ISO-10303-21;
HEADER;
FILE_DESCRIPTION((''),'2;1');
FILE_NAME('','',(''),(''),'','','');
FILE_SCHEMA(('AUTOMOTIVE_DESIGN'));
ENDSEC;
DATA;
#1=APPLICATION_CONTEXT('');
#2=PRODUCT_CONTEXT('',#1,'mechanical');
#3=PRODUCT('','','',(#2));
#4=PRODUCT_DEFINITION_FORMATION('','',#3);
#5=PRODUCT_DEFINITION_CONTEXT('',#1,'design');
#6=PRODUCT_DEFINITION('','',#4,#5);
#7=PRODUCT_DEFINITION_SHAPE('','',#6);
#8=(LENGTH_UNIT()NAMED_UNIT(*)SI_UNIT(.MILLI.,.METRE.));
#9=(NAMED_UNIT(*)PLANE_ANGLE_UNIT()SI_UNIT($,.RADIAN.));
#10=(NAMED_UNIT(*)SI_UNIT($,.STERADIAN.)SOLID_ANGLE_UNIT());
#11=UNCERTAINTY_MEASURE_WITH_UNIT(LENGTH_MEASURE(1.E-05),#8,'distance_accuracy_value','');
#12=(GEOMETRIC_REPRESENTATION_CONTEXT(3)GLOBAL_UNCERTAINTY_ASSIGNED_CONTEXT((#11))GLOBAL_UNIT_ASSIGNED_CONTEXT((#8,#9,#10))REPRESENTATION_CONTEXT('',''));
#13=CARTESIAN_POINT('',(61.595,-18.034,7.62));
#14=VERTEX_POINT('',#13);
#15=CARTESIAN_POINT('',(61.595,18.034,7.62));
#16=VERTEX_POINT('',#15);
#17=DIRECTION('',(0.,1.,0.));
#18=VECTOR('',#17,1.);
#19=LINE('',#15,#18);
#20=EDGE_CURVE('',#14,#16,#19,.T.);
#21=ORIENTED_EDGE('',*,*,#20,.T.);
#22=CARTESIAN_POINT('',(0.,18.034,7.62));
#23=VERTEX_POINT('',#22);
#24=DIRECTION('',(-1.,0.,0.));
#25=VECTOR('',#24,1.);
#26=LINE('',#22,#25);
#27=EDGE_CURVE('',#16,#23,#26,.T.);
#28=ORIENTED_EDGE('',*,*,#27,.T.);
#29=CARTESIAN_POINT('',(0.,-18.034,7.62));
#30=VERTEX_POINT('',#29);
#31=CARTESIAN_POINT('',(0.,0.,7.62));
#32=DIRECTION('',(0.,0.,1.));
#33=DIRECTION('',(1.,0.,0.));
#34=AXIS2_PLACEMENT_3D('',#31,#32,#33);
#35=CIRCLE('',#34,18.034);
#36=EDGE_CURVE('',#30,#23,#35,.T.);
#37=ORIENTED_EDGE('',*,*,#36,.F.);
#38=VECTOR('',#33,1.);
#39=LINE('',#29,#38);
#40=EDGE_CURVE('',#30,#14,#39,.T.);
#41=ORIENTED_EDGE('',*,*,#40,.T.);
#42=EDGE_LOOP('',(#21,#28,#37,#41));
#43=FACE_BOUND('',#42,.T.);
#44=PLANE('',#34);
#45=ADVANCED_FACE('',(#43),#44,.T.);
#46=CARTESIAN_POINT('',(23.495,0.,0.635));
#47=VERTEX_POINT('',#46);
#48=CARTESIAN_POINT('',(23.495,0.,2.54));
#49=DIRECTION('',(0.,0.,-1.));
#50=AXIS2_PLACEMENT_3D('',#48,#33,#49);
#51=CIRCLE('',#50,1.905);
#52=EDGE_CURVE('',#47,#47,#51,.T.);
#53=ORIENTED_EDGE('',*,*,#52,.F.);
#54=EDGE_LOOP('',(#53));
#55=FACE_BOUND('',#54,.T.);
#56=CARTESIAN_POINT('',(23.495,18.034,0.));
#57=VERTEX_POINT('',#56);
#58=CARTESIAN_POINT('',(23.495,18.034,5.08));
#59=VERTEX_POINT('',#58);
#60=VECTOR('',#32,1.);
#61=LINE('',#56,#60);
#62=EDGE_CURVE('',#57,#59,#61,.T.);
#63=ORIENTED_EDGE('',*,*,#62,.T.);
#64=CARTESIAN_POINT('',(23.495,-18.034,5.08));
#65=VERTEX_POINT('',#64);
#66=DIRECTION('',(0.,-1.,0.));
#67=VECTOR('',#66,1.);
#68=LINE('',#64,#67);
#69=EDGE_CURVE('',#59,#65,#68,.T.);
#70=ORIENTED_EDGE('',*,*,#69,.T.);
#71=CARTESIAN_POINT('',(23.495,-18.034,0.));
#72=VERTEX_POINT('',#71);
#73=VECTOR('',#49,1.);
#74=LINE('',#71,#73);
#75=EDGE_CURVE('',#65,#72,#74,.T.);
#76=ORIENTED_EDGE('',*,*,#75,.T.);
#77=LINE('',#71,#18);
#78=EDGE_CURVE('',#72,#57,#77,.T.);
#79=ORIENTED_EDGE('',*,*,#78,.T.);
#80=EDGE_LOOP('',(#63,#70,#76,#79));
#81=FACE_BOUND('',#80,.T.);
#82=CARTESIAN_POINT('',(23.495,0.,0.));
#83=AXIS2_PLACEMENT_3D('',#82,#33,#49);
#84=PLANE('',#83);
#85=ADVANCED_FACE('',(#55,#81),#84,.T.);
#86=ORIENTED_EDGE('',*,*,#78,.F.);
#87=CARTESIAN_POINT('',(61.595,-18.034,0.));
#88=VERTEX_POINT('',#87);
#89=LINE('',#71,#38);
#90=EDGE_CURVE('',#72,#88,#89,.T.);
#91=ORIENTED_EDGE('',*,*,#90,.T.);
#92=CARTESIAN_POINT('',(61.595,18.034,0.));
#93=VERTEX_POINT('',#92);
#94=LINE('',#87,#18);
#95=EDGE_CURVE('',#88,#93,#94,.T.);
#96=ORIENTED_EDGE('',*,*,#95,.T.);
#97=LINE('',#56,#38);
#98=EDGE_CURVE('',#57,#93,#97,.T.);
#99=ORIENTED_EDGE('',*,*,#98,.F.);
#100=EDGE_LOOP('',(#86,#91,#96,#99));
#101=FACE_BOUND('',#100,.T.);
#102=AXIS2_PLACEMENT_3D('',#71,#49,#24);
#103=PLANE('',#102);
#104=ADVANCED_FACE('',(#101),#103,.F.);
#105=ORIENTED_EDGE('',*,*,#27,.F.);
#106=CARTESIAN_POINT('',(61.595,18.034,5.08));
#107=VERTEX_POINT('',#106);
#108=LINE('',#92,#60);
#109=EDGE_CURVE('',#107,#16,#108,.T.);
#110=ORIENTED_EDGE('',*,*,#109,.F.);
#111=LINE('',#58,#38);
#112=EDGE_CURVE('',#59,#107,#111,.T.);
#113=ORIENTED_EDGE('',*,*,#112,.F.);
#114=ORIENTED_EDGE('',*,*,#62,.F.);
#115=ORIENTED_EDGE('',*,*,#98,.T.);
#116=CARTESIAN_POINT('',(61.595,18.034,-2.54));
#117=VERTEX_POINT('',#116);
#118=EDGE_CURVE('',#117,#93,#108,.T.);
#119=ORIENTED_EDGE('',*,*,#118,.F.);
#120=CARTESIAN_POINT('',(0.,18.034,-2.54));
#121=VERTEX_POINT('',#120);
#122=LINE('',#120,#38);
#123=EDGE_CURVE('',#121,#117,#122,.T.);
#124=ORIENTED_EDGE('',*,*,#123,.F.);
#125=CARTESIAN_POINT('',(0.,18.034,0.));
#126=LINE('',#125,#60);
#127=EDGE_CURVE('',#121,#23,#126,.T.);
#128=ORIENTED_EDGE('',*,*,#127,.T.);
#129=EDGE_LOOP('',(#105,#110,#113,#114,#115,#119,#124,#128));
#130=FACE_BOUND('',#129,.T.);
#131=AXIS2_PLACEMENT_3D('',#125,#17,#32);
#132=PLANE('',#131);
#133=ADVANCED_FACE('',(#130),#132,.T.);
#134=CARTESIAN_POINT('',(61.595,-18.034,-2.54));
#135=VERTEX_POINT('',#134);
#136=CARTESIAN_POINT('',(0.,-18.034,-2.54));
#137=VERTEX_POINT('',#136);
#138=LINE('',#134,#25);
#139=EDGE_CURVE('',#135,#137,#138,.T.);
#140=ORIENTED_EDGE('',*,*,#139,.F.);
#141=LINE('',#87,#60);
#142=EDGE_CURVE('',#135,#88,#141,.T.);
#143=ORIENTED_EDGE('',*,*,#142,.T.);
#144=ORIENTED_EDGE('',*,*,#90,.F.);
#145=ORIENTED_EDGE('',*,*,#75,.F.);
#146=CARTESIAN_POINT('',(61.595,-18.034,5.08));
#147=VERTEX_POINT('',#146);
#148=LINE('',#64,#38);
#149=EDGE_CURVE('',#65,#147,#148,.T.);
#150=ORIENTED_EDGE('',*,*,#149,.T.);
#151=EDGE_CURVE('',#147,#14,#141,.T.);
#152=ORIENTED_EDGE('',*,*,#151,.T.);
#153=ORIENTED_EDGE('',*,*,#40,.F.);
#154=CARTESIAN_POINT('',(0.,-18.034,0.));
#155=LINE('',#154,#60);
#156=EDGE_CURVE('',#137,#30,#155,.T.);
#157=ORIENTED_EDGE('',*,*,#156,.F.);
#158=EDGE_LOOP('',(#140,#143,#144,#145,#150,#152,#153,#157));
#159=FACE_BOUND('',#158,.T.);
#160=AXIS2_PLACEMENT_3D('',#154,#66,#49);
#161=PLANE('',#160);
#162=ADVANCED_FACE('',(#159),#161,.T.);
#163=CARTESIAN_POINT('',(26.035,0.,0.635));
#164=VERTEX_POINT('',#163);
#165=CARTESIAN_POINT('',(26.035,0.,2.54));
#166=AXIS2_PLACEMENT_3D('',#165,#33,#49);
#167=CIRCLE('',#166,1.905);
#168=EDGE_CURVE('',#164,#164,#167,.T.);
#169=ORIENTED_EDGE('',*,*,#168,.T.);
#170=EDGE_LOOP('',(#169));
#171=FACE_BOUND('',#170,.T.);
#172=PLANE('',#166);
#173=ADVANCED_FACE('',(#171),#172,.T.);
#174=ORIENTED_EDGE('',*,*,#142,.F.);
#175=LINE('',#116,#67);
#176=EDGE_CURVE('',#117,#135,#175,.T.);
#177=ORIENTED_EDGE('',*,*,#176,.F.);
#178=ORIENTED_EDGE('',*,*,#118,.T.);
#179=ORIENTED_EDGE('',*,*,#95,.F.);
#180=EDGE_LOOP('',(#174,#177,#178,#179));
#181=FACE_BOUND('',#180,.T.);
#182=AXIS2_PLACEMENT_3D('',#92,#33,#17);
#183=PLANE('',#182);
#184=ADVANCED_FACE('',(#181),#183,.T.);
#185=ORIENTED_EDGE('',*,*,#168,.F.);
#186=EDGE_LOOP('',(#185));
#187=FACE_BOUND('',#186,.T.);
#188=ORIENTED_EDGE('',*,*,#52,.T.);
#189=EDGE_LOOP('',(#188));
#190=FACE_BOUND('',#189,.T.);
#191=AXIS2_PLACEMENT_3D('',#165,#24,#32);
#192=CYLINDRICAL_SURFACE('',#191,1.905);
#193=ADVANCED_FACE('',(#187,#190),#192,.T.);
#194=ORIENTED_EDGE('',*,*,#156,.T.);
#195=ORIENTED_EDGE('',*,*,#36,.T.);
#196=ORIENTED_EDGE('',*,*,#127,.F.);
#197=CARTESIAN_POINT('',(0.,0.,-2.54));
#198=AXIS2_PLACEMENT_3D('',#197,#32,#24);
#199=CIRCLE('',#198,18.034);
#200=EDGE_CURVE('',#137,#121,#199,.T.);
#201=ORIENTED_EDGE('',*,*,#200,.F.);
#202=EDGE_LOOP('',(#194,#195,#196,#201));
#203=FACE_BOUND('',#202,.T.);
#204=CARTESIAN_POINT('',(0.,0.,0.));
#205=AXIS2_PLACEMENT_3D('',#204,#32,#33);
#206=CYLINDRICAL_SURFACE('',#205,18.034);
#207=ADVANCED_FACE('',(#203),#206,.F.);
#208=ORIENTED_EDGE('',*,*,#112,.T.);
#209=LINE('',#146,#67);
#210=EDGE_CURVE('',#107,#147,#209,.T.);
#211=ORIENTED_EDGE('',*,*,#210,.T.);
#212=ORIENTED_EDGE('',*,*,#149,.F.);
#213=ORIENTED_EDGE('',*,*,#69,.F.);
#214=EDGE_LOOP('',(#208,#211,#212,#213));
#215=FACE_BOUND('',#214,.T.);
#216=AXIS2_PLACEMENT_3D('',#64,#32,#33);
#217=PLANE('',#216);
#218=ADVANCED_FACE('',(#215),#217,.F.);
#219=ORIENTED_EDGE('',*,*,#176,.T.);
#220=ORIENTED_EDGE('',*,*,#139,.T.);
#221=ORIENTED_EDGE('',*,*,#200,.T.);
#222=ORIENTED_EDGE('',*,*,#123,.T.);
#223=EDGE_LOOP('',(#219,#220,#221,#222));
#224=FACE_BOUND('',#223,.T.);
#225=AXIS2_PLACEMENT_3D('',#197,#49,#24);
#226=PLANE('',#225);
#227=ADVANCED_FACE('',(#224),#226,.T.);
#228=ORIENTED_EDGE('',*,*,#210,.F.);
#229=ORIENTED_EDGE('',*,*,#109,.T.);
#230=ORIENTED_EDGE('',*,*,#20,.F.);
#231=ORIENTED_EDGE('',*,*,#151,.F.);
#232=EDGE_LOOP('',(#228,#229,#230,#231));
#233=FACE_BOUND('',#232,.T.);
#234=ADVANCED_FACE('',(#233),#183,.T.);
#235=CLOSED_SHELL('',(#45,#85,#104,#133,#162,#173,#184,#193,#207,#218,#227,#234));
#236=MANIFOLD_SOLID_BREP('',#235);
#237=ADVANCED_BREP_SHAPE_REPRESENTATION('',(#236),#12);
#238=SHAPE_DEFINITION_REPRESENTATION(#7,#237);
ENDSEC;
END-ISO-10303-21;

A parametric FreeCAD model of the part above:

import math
import FreeCAD as App
import Part
import Sketcher
from FreeCAD import Vector
Q = App.Units.Quantity


def add_polygon(sketch, points):
    """Adds a closed chain of lines whose ends are joined by coincident constraints."""
    first, n = sketch.GeometryCount, len(points)
    for a, b in zip(points, points[1:] + points[:1]):
        sketch.addGeometry(Part.LineSegment(App.Vector(*a, 0), App.Vector(*b, 0)), False)
    for i in range(n):
        sketch.addConstraint(Sketcher.Constraint("Coincident", first + i, 2, first + (i + 1) % n, 1))

doc = App.newDocument("Part")
params = doc.addObject("Spreadsheet::Sheet", "Params")
for row, (alias, value) in enumerate([
    ("sketch1_diameter", "1.57 in"),
    ("pad1_length", "0.3 in"),
    ("sketch2_height", "0.3 in"),
    ("sketch2_width", "1.57 in"),
    ("pad2_length", "2.5 in"),
    ("sketch3_diameter", "1.42 in"),
    ("sketch4_height", "1.42 in"),
    ("sketch4_width", "2.425 in"),
    ("sketch5_radius", "0.71 in"),
    ("sketch5_width", "2.425 in"),
    ("pad3_length", "0.1 in"),
    ("sketch6_height", "0.2 in"),
    ("sketch6_width", "1.42 in"),
    ("pocket3_length", "1.5 in"),
    ("sketch7_diameter", "0.15 in"),
    ("pad4_length", "0.1 in"),
], start=1):
    params.set(f"A{row}", alias)
    params.set(f"B{row}", "=" + value)
    params.setAlias(f"B{row}", alias)

body = doc.addObject("PartDesign::Body", "Body")

# Sketch on XY plane
sketch1 = body.newObject("Sketcher::SketchObject", "Sketch")
sketch1.AttachmentSupport = (doc.getObject("XY_Plane"), [""])
sketch1.MapMode = "FlatFace"
sketch1.addGeometry(Part.Circle(Vector(0, 0, 0), Vector(0, 0, 1), 19.939), False)
sketch1.addConstraint([
    Sketcher.Constraint("Coincident", 0, 3, -1, 1),
    Sketcher.Constraint("Diameter", 0, Q("1.57 in")),
])
sketch1.setExpression("Constraints[1]", "Params.sketch1_diameter")
pad1 = body.newObject("PartDesign::Pad", "Pad")
pad1.Profile = sketch1
pad1.setExpression("Length", "Params.pad1_length")

# Sketch on YZ plane
sketch2 = body.newObject("Sketcher::SketchObject", "Sketch001")
sketch2.AttachmentSupport = (doc.getObject("YZ_Plane"), [""])
sketch2.MapMode = "FlatFace"
add_polygon(sketch2, [(19.939, 7.62), (-19.939, 7.62), (-19.939, 0), (19.939, 0)])  # lines 0-3
sketch2.addConstraint([
    Sketcher.Constraint("Horizontal", 0),
    Sketcher.Constraint("Vertical", 1),
    Sketcher.Constraint("Horizontal", 2),
    Sketcher.Constraint("Vertical", 3),
    Sketcher.Constraint("Symmetric", 1, 2, 2, 2, -1, 1),
    Sketcher.Constraint("DistanceY", 1, 2, 1, 1, Q("0.3 in")),
    Sketcher.Constraint("DistanceX", 0, 2, 0, 1, Q("1.57 in")),
])
sketch2.setExpression("Constraints[9]", "Params.sketch2_height")
sketch2.setExpression("Constraints[10]", "Params.sketch2_width")
pad2 = body.newObject("PartDesign::Pad", "Pad001")
pad2.Profile = sketch2
pad2.setExpression("Length", "Params.pad2_length")

# Sketch on XY plane
sketch3 = body.newObject("Sketcher::SketchObject", "Sketch002")
sketch3.AttachmentSupport = (doc.getObject("XY_Plane"), [""])
sketch3.MapMode = "FlatFace"
sketch3.AttachmentOffset = App.Placement(Vector(0, 0, 0.3 * 25.4), App.Rotation())
sketch3.addGeometry(Part.Circle(Vector(0, 0, 0), Vector(0, 0, 1), 18.034), False)
sketch3.addConstraint([
    Sketcher.Constraint("Coincident", 0, 3, -1, 1),
    Sketcher.Constraint("Diameter", 0, Q("1.42 in")),
])
sketch3.setExpression("Constraints[1]", "Params.sketch3_diameter")
pocket1 = body.newObject("PartDesign::Pocket", "Pocket")
pocket1.Profile = sketch3
pocket1.Type = "ThroughAll"

# Sketch on XY plane
sketch4 = body.newObject("Sketcher::SketchObject", "Sketch003")
sketch4.AttachmentSupport = (doc.getObject("XY_Plane"), [""])
sketch4.MapMode = "FlatFace"
sketch4.AttachmentOffset = App.Placement(Vector(0, 0, 0.3 * 25.4), App.Rotation())
add_polygon(sketch4, [(-30.218, 30.218), (-30.218, -30.218), (73.779, -30.218), (73.779, 30.218)])  # lines 0-3
add_polygon(sketch4, [(61.595, -18.034), (0, -18.034), (0, 18.034), (61.595, 18.034)])  # lines 4-7
sketch4.addConstraint([
    Sketcher.Constraint("Vertical", 0),
    Sketcher.Constraint("Horizontal", 1),
    Sketcher.Constraint("Vertical", 2),
    Sketcher.Constraint("Horizontal", 3),
    Sketcher.Constraint("Horizontal", 4),
    Sketcher.Constraint("Vertical", 5),
    Sketcher.Constraint("Horizontal", 6),
    Sketcher.Constraint("Vertical", 7),
    Sketcher.Constraint("Symmetric", 4, 2, 5, 2, -1, 1),
    Sketcher.Constraint("DistanceY", 5, 1, 5, 2, Q("1.42 in")),
    Sketcher.Constraint("DistanceX", 4, 2, 4, 1, Q("2.425 in")),
    Sketcher.Constraint("DistanceX", 1, 1, 1, 2, 103.997),
    Sketcher.Constraint("DistanceY", 0, 2, 0, 1, 60.436),
    Sketcher.Constraint("DistanceX", 0, 2, -1, 1, 30.218),
    Sketcher.Constraint("DistanceY", 0, 2, -1, 1, 30.218),
])
sketch4.setExpression("Constraints[17]", "Params.sketch4_height")
sketch4.setExpression("Constraints[18]", "Params.sketch4_width")
pocket2 = body.newObject("PartDesign::Pocket", "Pocket001")
pocket2.Profile = sketch4
pocket2.Type = "ThroughAll"

# Sketch on XY plane
sketch5 = body.newObject("Sketcher::SketchObject", "Sketch004")
sketch5.AttachmentSupport = (doc.getObject("XY_Plane"), [""])
sketch5.MapMode = "FlatFace"
sketch5.addGeometry([
    Part.LineSegment(Vector(0, 18.034, 0), Vector(61.595, 18.034, 0)),
    Part.LineSegment(Vector(61.595, 18.034, 0), Vector(61.595, -18.034, 0)),
    Part.LineSegment(Vector(61.595, -18.034, 0), Vector(0, -18.034, 0)),
    Part.ArcOfCircle(Part.Circle(Vector(0, 0, 0), Vector(0, 0, 1), 18.034), math.radians(-90), math.radians(90)),
], False)
sketch5.addConstraint([
    Sketcher.Constraint("Coincident", 0, 2, 1, 1),
    Sketcher.Constraint("Coincident", 1, 2, 2, 1),
    Sketcher.Constraint("Tangent", 2, 2, 3, 1),
    Sketcher.Constraint("Tangent", 3, 2, 0, 1),
    Sketcher.Constraint("Horizontal", 0),
    Sketcher.Constraint("Vertical", 1),
    Sketcher.Constraint("Horizontal", 2),
    Sketcher.Constraint("Coincident", 3, 3, -1, 1),
    Sketcher.Constraint("Radius", 3, Q("0.71 in")),
    Sketcher.Constraint("DistanceX", 0, 1, 0, 2, Q("2.425 in")),
])
sketch5.setExpression("Constraints[8]", "Params.sketch5_radius")
sketch5.setExpression("Constraints[9]", "Params.sketch5_width")
pad3 = body.newObject("PartDesign::Pad", "Pad002")
pad3.Profile = sketch5
pad3.setExpression("Length", "Params.pad3_length")
pad3.Reversed = True

# Sketch on YZ plane
sketch6 = body.newObject("Sketcher::SketchObject", "Sketch005")
sketch6.AttachmentSupport = (doc.getObject("YZ_Plane"), [""])
sketch6.MapMode = "FlatFace"
sketch6.AttachmentOffset = App.Placement(Vector(0, 0, 2.425 * 25.4), App.Rotation())
add_polygon(sketch6, [(18.034, 5.08), (-18.034, 5.08), (-18.034, 0), (18.034, 0)])  # lines 0-3
sketch6.addConstraint([
    Sketcher.Constraint("Horizontal", 0),
    Sketcher.Constraint("Vertical", 1),
    Sketcher.Constraint("Horizontal", 2),
    Sketcher.Constraint("Vertical", 3),
    Sketcher.Constraint("Symmetric", 1, 2, 2, 2, -1, 1),
    Sketcher.Constraint("DistanceY", 1, 2, 1, 1, Q("0.2 in")),
    Sketcher.Constraint("DistanceX", 0, 2, 0, 1, Q("1.42 in")),
])
sketch6.setExpression("Constraints[9]", "Params.sketch6_height")
sketch6.setExpression("Constraints[10]", "Params.sketch6_width")
pocket3 = body.newObject("PartDesign::Pocket", "Pocket002")
pocket3.Profile = sketch6
pocket3.setExpression("Length", "Params.pocket3_length")

# Sketch on YZ plane
sketch7 = body.newObject("Sketcher::SketchObject", "Sketch006")
sketch7.AttachmentSupport = (doc.getObject("YZ_Plane"), [""])
sketch7.MapMode = "FlatFace"
sketch7.AttachmentOffset = App.Placement(Vector(0, 0, 0.925 * 25.4), App.Rotation())
sketch7.addGeometry(Part.Circle(Vector(0, 2.54, 0), Vector(0, 0, 1), 1.905), False)
sketch7.addConstraint([
    Sketcher.Constraint("PointOnObject", 0, 3, -2),
    Sketcher.Constraint("Diameter", 0, Q("0.15 in")),
    Sketcher.Constraint("DistanceY", -1, 1, 0, 3, Q("0.1 in")),
])
sketch7.setExpression("Constraints[1]", "Params.sketch7_diameter")
pad4 = body.newObject("PartDesign::Pad", "Pad003")
pad4.Profile = sketch7
pad4.setExpression("Length", "Params.pad4_length")

doc.recompute()
